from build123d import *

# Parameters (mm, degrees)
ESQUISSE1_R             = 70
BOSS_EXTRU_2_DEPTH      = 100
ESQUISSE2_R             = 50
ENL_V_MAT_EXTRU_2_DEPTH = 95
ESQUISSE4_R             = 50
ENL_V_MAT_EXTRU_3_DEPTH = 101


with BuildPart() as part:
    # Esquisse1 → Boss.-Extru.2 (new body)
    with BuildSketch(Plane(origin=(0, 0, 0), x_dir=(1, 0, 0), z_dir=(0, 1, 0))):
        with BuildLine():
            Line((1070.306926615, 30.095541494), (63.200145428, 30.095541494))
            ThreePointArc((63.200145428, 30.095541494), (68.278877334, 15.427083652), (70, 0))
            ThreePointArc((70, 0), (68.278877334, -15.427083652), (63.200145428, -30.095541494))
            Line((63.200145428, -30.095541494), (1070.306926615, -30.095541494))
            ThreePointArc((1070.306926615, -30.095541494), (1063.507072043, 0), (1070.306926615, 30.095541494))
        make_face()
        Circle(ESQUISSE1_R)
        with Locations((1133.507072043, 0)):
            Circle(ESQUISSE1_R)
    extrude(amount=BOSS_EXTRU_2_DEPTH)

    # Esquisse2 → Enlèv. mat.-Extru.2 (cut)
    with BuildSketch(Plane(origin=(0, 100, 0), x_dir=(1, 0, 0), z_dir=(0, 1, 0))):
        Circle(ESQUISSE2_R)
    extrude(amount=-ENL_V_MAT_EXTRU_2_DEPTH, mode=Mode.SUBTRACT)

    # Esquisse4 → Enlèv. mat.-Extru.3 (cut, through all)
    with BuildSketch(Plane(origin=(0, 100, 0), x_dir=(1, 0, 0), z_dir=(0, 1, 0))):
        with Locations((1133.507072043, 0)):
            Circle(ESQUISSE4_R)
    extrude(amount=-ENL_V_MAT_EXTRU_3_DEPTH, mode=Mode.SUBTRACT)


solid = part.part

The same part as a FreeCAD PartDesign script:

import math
import FreeCAD as App
import Part
import Sketcher

V = App.Vector

doc = App.newDocument("Part")
body = doc.addObject("PartDesign::Body", "Body")

sketch1 = doc.addObject("Sketcher::SketchObject", "Sketch")
body.addObject(sketch1)
sketch1.AttachmentSupport = (doc.XZ_Plane, [""])
sketch1.MapMode = "FlatFace"
sketch1.addGeometry(Part.LineSegment(V(1070.306927, -30.095541, 0), V(63.200145, -30.095541, 0)), False)
sketch1.addGeometry(Part.ArcOfCircle(Part.Circle(V(0, 0, 0), V(0, 0, 1), 70), math.radians(25.463518), math.radians(334.536482)), False)
sketch1.addGeometry(Part.LineSegment(V(63.200145, 30.095541, 0), V(1070.306927, 30.095541, 0)), False)
sketch1.addGeometry(Part.ArcOfCircle(Part.Circle(V(1133.507072, 0, 0), V(0, 0, 1), 70), math.radians(-154.536482), math.radians(154.536482)), False)
sketch1.addConstraint(Sketcher.Constraint("Coincident", 0, 2, 1, 2))
sketch1.addConstraint(Sketcher.Constraint("Coincident", 1, 1, 2, 1))
sketch1.addConstraint(Sketcher.Constraint("Coincident", 2, 2, 3, 2))
sketch1.addConstraint(Sketcher.Constraint("Coincident", 3, 1, 0, 1))
sketch1.addConstraint(Sketcher.Constraint("Horizontal", 0))
sketch1.addConstraint(Sketcher.Constraint("Horizontal", 2))
sketch1.addConstraint(Sketcher.Constraint("Coincident", 1, 3, -1, 1))
sketch1.addConstraint(Sketcher.Constraint("Equal", 1, 3))
sketch1.addConstraint(Sketcher.Constraint("Symmetric", 2, 2, 3, 1, -1))
sketch1.addConstraint(Sketcher.Constraint("Radius", 1, 70.0))
sketch1.addConstraint(Sketcher.Constraint("DistanceX", 0, 2, 0, 1, 1007.106781))
sketch1.addConstraint(Sketcher.Constraint("DistanceY", 0, 2, -1, 1, 30.095541))
pad1 = doc.addObject("PartDesign::Pad", "Pad")
body.addObject(pad1)
pad1.Profile = sketch1
pad1.Length = 100
pad1.Reversed = True

sketch2 = doc.addObject("Sketcher::SketchObject", "Sketch001")
body.addObject(sketch2)
sketch2.AttachmentSupport = (doc.XZ_Plane, [""])
sketch2.MapMode = "FlatFace"
sketch2.AttachmentOffset = App.Placement(V(0, 0, -100), App.Rotation())
sketch2.addGeometry(Part.Circle(V(0, 0, 0), V(0, 0, 1), 50), False)
sketch2.addConstraint(Sketcher.Constraint("Coincident", 0, 3, -1, 1))
sketch2.addConstraint(Sketcher.Constraint("Diameter", 0, 100.0))
pocket1 = doc.addObject("PartDesign::Pocket", "Pocket")
body.addObject(pocket1)
pocket1.Profile = sketch2
pocket1.Length = 95
pocket1.Reversed = True

sketch3 = doc.addObject("Sketcher::SketchObject", "Sketch002")
body.addObject(sketch3)
sketch3.AttachmentSupport = (doc.XZ_Plane, [""])
sketch3.MapMode = "FlatFace"
sketch3.AttachmentOffset = App.Placement(V(0, 0, -100), App.Rotation())
sketch3.addGeometry(Part.Circle(V(1133.507072, 0, 0), V(0, 0, 1), 50), False)
sketch3.addConstraint(Sketcher.Constraint("PointOnObject", 0, 3, -1))
sketch3.addConstraint(Sketcher.Constraint("Diameter", 0, 100.0))
sketch3.addConstraint(Sketcher.Constraint("DistanceX", -1, 1, 0, 3, 1133.507072))
pocket2 = doc.addObject("PartDesign::Pocket", "Pocket001")
body.addObject(pocket2)
pocket2.Profile = sketch3
pocket2.Type = "ThroughAll"
pocket2.Reversed = True

doc.recompute()
